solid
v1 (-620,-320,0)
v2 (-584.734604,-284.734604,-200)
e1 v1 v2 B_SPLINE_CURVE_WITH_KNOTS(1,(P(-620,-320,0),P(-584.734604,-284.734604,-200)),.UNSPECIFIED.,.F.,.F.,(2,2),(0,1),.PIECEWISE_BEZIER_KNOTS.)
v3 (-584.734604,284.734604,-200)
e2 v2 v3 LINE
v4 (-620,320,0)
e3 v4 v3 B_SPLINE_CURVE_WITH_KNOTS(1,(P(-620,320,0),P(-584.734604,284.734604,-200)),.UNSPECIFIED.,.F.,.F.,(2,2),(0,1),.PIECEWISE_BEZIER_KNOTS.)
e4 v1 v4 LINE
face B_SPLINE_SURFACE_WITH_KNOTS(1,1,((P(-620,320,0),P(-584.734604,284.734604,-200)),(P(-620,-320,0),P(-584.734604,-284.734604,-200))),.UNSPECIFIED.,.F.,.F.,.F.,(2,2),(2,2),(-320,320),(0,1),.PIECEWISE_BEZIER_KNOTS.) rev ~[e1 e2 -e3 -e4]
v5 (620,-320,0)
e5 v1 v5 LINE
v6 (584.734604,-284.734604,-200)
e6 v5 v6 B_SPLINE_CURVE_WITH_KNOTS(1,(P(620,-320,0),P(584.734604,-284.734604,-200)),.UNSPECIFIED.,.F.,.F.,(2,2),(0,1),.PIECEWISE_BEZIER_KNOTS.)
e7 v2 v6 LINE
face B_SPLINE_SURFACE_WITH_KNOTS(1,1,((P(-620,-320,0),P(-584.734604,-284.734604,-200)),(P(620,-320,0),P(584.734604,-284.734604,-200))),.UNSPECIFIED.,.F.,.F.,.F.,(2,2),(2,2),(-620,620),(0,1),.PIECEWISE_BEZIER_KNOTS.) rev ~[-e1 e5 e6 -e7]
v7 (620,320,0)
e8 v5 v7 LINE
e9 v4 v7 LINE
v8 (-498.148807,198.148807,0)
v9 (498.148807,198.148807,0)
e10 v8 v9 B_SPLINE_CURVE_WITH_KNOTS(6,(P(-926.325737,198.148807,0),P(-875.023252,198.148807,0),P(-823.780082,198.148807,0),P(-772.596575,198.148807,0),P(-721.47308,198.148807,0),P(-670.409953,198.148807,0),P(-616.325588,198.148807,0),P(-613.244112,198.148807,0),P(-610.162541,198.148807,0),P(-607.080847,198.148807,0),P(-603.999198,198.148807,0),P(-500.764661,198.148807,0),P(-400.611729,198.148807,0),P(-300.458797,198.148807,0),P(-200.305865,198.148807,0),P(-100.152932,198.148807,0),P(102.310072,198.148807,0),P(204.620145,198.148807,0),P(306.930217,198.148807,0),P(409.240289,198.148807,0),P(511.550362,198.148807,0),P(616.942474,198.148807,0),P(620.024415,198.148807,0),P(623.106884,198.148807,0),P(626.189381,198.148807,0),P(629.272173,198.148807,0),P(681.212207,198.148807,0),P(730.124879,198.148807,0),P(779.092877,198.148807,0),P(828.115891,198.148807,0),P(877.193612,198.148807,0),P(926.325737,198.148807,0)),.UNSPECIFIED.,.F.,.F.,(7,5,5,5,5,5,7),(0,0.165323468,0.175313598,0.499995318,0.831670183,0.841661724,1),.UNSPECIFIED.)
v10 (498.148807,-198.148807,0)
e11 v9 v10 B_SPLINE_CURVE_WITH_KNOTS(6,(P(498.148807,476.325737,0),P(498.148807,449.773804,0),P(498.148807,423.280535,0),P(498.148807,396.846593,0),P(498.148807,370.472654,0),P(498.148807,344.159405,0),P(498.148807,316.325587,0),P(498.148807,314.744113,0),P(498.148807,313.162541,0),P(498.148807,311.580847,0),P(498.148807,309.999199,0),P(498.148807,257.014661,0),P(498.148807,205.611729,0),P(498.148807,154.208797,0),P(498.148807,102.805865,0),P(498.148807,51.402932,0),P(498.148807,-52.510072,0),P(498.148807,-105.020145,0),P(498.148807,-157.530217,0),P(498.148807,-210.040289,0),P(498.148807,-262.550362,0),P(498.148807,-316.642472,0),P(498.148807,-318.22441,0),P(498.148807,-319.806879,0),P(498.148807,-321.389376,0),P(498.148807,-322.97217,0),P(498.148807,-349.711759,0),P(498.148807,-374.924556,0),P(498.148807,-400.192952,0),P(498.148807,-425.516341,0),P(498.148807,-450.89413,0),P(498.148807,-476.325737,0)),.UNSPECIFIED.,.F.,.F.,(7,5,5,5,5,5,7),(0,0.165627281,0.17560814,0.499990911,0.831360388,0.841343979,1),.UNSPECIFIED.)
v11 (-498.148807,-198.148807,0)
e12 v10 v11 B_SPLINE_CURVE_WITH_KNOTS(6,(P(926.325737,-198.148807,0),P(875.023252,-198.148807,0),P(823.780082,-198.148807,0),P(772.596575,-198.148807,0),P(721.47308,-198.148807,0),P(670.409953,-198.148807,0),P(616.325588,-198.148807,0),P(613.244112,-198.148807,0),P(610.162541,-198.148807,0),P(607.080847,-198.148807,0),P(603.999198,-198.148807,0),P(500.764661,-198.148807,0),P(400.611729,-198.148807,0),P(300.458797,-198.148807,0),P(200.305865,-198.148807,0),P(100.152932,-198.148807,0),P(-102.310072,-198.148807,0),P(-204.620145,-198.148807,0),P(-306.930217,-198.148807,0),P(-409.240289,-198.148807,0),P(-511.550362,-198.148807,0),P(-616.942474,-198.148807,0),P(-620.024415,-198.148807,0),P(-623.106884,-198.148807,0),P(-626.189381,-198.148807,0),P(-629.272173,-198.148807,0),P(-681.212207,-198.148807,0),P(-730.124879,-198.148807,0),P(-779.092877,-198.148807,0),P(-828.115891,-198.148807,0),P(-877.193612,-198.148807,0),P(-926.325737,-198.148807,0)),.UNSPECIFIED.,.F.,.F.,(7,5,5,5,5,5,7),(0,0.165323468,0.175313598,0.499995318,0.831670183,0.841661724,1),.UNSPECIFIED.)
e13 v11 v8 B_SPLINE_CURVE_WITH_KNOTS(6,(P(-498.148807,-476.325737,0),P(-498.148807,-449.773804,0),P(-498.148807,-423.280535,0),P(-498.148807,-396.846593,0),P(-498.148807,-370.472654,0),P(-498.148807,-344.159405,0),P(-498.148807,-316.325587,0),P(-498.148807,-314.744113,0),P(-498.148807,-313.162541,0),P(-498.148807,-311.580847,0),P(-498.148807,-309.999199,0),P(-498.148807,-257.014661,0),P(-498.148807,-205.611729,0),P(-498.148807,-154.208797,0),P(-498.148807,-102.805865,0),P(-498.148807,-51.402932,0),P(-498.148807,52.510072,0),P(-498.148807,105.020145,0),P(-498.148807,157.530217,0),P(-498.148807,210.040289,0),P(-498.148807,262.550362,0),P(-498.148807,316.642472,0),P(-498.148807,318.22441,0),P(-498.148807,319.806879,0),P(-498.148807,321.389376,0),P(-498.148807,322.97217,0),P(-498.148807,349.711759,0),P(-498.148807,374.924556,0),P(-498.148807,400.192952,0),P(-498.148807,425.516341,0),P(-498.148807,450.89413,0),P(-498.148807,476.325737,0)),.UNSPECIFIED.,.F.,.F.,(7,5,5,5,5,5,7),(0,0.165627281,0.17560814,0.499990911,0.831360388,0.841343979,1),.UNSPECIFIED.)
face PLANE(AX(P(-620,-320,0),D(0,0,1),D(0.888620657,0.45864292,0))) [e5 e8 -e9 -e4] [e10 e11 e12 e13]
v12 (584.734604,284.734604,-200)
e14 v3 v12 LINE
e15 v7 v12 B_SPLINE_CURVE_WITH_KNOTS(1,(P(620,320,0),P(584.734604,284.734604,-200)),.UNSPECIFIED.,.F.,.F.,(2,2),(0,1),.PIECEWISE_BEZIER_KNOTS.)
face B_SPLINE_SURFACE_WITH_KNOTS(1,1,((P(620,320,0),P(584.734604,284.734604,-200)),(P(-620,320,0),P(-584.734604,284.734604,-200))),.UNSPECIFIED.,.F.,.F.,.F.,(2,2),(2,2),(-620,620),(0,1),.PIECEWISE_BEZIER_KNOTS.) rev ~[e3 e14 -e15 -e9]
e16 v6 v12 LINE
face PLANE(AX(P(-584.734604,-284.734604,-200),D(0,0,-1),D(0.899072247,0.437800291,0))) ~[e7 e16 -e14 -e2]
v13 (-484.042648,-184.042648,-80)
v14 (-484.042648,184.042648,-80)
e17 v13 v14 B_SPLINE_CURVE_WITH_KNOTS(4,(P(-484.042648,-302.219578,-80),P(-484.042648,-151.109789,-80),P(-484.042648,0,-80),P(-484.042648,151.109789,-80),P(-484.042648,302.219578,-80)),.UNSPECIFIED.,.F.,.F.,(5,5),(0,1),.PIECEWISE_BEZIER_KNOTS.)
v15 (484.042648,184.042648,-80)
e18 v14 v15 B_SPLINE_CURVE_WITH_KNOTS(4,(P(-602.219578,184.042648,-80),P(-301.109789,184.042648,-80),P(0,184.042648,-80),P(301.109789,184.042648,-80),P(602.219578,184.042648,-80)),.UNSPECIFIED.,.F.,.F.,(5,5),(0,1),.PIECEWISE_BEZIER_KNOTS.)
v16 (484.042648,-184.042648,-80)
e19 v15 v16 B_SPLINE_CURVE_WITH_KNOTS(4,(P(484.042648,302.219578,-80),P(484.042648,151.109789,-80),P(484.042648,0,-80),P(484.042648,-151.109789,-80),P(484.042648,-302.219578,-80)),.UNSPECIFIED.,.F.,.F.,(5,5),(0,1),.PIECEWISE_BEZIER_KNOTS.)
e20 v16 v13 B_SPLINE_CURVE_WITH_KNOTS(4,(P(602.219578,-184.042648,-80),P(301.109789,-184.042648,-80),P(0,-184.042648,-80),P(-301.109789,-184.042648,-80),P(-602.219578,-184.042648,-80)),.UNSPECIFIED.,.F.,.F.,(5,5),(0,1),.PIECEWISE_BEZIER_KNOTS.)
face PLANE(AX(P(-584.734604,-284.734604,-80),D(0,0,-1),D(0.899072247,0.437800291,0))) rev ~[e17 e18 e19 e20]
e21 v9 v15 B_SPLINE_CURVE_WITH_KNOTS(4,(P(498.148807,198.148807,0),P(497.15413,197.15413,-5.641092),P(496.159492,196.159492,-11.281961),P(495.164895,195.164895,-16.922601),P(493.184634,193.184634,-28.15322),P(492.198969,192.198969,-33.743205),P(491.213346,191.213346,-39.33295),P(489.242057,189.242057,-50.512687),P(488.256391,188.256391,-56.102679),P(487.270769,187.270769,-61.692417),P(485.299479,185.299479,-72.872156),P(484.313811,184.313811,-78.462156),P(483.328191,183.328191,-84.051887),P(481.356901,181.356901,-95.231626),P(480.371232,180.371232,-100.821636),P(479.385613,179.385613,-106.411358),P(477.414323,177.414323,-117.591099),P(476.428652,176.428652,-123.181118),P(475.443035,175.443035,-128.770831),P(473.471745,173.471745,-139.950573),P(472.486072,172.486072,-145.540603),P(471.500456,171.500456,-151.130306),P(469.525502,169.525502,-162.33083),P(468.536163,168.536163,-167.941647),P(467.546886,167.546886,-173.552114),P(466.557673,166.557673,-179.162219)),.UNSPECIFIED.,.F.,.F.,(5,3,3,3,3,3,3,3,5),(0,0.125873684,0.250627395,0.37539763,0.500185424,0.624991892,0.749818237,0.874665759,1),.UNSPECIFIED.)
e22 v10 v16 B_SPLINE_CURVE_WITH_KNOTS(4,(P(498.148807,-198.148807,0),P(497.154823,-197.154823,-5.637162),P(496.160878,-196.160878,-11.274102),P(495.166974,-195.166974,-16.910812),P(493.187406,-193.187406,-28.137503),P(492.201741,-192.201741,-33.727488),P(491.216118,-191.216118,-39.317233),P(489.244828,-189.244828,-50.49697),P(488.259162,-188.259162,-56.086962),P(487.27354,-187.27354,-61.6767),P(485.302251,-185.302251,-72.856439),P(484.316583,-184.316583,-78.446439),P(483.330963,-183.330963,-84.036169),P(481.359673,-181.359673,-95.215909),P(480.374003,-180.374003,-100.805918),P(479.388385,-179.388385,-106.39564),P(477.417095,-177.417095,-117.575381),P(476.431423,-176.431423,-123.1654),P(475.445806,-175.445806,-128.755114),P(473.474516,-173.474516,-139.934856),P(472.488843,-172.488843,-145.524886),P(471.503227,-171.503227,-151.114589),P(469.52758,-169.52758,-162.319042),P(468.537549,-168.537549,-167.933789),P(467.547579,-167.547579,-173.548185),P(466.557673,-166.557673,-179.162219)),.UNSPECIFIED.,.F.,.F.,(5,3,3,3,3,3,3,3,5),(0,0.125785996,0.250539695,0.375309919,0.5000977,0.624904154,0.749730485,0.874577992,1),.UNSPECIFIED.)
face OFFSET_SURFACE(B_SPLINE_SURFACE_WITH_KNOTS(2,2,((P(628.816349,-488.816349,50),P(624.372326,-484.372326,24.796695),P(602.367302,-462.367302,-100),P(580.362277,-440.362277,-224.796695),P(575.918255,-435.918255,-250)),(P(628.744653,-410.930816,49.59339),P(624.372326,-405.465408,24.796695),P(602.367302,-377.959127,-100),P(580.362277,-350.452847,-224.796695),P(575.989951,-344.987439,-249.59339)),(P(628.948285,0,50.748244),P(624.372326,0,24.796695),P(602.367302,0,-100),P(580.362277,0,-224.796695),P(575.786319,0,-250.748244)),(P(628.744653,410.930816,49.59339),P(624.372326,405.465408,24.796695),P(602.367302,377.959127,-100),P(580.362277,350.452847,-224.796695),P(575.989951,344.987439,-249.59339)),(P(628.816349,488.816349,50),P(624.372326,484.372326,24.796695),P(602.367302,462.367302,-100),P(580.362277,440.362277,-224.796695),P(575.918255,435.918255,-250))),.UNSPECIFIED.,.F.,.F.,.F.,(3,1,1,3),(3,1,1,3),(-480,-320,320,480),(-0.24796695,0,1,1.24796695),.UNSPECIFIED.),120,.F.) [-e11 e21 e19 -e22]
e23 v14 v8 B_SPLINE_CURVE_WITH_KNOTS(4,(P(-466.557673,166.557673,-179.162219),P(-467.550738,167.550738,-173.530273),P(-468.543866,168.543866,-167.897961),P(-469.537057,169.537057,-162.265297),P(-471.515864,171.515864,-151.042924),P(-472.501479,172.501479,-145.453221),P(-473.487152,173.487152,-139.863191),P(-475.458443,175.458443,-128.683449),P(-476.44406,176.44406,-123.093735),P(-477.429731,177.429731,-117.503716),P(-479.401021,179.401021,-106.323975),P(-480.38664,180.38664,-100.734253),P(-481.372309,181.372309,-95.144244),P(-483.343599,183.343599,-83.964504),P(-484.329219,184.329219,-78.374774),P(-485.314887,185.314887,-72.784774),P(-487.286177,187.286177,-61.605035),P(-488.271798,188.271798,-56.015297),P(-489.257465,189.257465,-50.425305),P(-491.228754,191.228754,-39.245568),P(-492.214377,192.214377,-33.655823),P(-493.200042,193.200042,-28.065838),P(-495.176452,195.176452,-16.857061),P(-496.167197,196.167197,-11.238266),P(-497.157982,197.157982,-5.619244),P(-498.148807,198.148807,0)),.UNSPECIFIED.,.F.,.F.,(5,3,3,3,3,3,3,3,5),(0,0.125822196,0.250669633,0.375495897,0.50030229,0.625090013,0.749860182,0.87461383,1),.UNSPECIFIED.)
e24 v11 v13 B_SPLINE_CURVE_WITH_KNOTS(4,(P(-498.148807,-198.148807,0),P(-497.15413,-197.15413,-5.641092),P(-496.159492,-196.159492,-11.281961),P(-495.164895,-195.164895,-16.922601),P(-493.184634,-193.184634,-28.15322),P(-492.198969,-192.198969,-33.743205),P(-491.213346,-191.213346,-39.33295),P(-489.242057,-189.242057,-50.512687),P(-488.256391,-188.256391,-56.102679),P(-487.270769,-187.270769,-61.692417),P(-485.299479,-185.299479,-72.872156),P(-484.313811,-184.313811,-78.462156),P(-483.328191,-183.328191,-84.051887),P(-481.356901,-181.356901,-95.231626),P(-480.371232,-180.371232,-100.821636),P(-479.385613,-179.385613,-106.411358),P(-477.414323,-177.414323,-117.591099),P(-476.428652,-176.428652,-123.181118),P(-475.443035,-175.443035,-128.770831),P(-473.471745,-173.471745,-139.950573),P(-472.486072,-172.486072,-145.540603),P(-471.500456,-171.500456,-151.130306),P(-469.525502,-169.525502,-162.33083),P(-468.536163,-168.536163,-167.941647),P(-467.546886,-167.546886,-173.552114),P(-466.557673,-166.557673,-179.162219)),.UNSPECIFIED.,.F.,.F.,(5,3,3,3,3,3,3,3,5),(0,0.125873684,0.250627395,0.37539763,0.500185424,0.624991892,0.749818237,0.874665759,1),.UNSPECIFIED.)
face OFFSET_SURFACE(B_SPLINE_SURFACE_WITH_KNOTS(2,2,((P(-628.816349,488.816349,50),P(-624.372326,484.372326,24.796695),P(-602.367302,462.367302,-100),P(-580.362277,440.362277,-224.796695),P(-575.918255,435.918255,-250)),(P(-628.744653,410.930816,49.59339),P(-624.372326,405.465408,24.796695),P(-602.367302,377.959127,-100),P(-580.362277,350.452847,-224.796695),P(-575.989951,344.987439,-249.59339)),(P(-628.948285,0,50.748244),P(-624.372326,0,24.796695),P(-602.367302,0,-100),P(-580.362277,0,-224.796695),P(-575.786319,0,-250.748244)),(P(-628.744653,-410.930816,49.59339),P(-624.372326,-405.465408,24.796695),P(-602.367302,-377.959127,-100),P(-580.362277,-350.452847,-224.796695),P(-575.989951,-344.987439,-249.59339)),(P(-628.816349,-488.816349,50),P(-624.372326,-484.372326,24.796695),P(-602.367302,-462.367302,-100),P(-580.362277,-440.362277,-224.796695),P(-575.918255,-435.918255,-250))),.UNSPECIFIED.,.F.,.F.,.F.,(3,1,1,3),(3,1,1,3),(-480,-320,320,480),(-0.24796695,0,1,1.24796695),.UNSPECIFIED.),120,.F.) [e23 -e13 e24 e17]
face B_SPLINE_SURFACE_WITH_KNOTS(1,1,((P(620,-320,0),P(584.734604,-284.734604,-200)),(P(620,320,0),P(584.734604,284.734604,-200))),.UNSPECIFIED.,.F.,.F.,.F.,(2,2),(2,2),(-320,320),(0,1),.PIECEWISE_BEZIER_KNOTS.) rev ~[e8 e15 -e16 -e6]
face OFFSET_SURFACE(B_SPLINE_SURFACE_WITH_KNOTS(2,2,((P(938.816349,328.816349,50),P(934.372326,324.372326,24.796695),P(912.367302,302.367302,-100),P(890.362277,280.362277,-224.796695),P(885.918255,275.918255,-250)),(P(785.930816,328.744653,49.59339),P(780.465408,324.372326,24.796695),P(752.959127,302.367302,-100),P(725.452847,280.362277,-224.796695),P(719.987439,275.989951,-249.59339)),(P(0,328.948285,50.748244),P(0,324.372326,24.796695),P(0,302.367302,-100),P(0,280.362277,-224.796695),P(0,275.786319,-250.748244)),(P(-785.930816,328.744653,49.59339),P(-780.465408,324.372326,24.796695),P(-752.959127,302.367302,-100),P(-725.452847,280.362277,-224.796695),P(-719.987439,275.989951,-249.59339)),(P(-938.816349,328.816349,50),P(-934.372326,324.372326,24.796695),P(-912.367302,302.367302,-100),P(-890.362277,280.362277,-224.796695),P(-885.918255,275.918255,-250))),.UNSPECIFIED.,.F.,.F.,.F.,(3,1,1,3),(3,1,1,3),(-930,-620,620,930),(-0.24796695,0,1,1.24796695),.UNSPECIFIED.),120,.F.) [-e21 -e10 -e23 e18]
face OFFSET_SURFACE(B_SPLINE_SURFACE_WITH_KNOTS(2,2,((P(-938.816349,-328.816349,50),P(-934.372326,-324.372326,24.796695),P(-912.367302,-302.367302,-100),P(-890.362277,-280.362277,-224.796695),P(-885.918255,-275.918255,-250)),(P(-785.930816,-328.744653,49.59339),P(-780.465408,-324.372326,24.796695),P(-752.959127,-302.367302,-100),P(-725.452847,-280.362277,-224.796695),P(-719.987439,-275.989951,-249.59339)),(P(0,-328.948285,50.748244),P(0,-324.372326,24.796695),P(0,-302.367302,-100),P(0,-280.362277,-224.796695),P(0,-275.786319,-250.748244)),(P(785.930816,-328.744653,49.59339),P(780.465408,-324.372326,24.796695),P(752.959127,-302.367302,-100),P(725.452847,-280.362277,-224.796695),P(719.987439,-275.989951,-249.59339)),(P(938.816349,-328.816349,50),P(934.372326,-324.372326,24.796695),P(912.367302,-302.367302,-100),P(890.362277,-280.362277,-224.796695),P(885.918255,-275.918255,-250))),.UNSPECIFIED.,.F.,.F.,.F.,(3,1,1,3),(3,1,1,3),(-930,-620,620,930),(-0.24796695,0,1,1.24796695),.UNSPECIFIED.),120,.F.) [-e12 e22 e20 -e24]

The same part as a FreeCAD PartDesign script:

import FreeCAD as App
import Part
import Sketcher
from FreeCAD import Vector


def faces_at(feature, points):
    """Names of the faces that lie closest to the given points."""
    faces = feature.Shape.Faces
    near = lambda p: min(range(len(faces)), key=lambda i: faces[i].distToShape(Part.Vertex(*p))[0])
    return sorted({f"Face{near(p) + 1}" for p in points})

doc = App.newDocument("Part")
params = doc.addObject("Spreadsheet::Sheet", "Params")
for row, (alias, value) in enumerate([
    ("sketch1_width", "1240 mm"),
    ("sketch1_height", "640 mm"),
    ("pad1_length", "200 mm"),
    ("pad1_taper", "-10 deg"),
    ("thickness_wall", "120 mm"),
], start=1):
    params.set(f"A{row}", alias)
    params.set(f"B{row}", "=" + value)
    params.setAlias(f"B{row}", alias)

body = doc.addObject("PartDesign::Body", "Body")

sketch1 = body.newObject("Sketcher::SketchObject", "Sketch")
sketch1.AttachmentSupport = (doc.getObject("XY_Plane"), [""])
sketch1.MapMode = "FlatFace"
sketch1.addGeometry(Part.LineSegment(Vector(-620, 320, 0), Vector(-620, -320, 0)), False)
sketch1.addGeometry(Part.LineSegment(Vector(-620, -320, 0), Vector(620, -320, 0)), False)
sketch1.addGeometry(Part.LineSegment(Vector(620, -320, 0), Vector(620, 320, 0)), False)
sketch1.addGeometry(Part.LineSegment(Vector(620, 320, 0), Vector(-620, 320, 0)), False)
sketch1.addConstraint(Sketcher.Constraint("Coincident", 0, 2, 1, 1))
sketch1.addConstraint(Sketcher.Constraint("Coincident", 1, 2, 2, 1))
sketch1.addConstraint(Sketcher.Constraint("Coincident", 2, 2, 3, 1))
sketch1.addConstraint(Sketcher.Constraint("Coincident", 3, 2, 0, 1))
sketch1.addConstraint(Sketcher.Constraint("Vertical", 0))
sketch1.addConstraint(Sketcher.Constraint("Horizontal", 1))
sketch1.addConstraint(Sketcher.Constraint("Vertical", 2))
sketch1.addConstraint(Sketcher.Constraint("Horizontal", 3))
sketch1.addConstraint(Sketcher.Constraint("Symmetric", 0, 2, 2, 2, -1, 1))
sketch1.addConstraint(Sketcher.Constraint("DistanceX", 1, 1, 1, 2, 1240.0))
sketch1.addConstraint(Sketcher.Constraint("DistanceY", 0, 2, 0, 1, 640.0))
sketch1.setExpression("Constraints[9]", "Params.sketch1_width")
sketch1.setExpression("Constraints[10]", "Params.sketch1_height")
pad1 = body.newObject("PartDesign::Pad", "Pad")
pad1.Profile = sketch1
pad1.setExpression("Length", "Params.pad1_length")
pad1.Reversed = True
pad1.setExpression("TaperAngle", "Params.pad1_taper")
doc.recompute()

thickness = body.newObject("PartDesign::Thickness", "Thickness")
thickness.Base = (pad1, faces_at(pad1, [(0, 0, 0)]))
thickness.setExpression("Value", "Params.thickness_wall")
thickness.Reversed = True
thickness.Join = "Arc"

doc.recompute()
